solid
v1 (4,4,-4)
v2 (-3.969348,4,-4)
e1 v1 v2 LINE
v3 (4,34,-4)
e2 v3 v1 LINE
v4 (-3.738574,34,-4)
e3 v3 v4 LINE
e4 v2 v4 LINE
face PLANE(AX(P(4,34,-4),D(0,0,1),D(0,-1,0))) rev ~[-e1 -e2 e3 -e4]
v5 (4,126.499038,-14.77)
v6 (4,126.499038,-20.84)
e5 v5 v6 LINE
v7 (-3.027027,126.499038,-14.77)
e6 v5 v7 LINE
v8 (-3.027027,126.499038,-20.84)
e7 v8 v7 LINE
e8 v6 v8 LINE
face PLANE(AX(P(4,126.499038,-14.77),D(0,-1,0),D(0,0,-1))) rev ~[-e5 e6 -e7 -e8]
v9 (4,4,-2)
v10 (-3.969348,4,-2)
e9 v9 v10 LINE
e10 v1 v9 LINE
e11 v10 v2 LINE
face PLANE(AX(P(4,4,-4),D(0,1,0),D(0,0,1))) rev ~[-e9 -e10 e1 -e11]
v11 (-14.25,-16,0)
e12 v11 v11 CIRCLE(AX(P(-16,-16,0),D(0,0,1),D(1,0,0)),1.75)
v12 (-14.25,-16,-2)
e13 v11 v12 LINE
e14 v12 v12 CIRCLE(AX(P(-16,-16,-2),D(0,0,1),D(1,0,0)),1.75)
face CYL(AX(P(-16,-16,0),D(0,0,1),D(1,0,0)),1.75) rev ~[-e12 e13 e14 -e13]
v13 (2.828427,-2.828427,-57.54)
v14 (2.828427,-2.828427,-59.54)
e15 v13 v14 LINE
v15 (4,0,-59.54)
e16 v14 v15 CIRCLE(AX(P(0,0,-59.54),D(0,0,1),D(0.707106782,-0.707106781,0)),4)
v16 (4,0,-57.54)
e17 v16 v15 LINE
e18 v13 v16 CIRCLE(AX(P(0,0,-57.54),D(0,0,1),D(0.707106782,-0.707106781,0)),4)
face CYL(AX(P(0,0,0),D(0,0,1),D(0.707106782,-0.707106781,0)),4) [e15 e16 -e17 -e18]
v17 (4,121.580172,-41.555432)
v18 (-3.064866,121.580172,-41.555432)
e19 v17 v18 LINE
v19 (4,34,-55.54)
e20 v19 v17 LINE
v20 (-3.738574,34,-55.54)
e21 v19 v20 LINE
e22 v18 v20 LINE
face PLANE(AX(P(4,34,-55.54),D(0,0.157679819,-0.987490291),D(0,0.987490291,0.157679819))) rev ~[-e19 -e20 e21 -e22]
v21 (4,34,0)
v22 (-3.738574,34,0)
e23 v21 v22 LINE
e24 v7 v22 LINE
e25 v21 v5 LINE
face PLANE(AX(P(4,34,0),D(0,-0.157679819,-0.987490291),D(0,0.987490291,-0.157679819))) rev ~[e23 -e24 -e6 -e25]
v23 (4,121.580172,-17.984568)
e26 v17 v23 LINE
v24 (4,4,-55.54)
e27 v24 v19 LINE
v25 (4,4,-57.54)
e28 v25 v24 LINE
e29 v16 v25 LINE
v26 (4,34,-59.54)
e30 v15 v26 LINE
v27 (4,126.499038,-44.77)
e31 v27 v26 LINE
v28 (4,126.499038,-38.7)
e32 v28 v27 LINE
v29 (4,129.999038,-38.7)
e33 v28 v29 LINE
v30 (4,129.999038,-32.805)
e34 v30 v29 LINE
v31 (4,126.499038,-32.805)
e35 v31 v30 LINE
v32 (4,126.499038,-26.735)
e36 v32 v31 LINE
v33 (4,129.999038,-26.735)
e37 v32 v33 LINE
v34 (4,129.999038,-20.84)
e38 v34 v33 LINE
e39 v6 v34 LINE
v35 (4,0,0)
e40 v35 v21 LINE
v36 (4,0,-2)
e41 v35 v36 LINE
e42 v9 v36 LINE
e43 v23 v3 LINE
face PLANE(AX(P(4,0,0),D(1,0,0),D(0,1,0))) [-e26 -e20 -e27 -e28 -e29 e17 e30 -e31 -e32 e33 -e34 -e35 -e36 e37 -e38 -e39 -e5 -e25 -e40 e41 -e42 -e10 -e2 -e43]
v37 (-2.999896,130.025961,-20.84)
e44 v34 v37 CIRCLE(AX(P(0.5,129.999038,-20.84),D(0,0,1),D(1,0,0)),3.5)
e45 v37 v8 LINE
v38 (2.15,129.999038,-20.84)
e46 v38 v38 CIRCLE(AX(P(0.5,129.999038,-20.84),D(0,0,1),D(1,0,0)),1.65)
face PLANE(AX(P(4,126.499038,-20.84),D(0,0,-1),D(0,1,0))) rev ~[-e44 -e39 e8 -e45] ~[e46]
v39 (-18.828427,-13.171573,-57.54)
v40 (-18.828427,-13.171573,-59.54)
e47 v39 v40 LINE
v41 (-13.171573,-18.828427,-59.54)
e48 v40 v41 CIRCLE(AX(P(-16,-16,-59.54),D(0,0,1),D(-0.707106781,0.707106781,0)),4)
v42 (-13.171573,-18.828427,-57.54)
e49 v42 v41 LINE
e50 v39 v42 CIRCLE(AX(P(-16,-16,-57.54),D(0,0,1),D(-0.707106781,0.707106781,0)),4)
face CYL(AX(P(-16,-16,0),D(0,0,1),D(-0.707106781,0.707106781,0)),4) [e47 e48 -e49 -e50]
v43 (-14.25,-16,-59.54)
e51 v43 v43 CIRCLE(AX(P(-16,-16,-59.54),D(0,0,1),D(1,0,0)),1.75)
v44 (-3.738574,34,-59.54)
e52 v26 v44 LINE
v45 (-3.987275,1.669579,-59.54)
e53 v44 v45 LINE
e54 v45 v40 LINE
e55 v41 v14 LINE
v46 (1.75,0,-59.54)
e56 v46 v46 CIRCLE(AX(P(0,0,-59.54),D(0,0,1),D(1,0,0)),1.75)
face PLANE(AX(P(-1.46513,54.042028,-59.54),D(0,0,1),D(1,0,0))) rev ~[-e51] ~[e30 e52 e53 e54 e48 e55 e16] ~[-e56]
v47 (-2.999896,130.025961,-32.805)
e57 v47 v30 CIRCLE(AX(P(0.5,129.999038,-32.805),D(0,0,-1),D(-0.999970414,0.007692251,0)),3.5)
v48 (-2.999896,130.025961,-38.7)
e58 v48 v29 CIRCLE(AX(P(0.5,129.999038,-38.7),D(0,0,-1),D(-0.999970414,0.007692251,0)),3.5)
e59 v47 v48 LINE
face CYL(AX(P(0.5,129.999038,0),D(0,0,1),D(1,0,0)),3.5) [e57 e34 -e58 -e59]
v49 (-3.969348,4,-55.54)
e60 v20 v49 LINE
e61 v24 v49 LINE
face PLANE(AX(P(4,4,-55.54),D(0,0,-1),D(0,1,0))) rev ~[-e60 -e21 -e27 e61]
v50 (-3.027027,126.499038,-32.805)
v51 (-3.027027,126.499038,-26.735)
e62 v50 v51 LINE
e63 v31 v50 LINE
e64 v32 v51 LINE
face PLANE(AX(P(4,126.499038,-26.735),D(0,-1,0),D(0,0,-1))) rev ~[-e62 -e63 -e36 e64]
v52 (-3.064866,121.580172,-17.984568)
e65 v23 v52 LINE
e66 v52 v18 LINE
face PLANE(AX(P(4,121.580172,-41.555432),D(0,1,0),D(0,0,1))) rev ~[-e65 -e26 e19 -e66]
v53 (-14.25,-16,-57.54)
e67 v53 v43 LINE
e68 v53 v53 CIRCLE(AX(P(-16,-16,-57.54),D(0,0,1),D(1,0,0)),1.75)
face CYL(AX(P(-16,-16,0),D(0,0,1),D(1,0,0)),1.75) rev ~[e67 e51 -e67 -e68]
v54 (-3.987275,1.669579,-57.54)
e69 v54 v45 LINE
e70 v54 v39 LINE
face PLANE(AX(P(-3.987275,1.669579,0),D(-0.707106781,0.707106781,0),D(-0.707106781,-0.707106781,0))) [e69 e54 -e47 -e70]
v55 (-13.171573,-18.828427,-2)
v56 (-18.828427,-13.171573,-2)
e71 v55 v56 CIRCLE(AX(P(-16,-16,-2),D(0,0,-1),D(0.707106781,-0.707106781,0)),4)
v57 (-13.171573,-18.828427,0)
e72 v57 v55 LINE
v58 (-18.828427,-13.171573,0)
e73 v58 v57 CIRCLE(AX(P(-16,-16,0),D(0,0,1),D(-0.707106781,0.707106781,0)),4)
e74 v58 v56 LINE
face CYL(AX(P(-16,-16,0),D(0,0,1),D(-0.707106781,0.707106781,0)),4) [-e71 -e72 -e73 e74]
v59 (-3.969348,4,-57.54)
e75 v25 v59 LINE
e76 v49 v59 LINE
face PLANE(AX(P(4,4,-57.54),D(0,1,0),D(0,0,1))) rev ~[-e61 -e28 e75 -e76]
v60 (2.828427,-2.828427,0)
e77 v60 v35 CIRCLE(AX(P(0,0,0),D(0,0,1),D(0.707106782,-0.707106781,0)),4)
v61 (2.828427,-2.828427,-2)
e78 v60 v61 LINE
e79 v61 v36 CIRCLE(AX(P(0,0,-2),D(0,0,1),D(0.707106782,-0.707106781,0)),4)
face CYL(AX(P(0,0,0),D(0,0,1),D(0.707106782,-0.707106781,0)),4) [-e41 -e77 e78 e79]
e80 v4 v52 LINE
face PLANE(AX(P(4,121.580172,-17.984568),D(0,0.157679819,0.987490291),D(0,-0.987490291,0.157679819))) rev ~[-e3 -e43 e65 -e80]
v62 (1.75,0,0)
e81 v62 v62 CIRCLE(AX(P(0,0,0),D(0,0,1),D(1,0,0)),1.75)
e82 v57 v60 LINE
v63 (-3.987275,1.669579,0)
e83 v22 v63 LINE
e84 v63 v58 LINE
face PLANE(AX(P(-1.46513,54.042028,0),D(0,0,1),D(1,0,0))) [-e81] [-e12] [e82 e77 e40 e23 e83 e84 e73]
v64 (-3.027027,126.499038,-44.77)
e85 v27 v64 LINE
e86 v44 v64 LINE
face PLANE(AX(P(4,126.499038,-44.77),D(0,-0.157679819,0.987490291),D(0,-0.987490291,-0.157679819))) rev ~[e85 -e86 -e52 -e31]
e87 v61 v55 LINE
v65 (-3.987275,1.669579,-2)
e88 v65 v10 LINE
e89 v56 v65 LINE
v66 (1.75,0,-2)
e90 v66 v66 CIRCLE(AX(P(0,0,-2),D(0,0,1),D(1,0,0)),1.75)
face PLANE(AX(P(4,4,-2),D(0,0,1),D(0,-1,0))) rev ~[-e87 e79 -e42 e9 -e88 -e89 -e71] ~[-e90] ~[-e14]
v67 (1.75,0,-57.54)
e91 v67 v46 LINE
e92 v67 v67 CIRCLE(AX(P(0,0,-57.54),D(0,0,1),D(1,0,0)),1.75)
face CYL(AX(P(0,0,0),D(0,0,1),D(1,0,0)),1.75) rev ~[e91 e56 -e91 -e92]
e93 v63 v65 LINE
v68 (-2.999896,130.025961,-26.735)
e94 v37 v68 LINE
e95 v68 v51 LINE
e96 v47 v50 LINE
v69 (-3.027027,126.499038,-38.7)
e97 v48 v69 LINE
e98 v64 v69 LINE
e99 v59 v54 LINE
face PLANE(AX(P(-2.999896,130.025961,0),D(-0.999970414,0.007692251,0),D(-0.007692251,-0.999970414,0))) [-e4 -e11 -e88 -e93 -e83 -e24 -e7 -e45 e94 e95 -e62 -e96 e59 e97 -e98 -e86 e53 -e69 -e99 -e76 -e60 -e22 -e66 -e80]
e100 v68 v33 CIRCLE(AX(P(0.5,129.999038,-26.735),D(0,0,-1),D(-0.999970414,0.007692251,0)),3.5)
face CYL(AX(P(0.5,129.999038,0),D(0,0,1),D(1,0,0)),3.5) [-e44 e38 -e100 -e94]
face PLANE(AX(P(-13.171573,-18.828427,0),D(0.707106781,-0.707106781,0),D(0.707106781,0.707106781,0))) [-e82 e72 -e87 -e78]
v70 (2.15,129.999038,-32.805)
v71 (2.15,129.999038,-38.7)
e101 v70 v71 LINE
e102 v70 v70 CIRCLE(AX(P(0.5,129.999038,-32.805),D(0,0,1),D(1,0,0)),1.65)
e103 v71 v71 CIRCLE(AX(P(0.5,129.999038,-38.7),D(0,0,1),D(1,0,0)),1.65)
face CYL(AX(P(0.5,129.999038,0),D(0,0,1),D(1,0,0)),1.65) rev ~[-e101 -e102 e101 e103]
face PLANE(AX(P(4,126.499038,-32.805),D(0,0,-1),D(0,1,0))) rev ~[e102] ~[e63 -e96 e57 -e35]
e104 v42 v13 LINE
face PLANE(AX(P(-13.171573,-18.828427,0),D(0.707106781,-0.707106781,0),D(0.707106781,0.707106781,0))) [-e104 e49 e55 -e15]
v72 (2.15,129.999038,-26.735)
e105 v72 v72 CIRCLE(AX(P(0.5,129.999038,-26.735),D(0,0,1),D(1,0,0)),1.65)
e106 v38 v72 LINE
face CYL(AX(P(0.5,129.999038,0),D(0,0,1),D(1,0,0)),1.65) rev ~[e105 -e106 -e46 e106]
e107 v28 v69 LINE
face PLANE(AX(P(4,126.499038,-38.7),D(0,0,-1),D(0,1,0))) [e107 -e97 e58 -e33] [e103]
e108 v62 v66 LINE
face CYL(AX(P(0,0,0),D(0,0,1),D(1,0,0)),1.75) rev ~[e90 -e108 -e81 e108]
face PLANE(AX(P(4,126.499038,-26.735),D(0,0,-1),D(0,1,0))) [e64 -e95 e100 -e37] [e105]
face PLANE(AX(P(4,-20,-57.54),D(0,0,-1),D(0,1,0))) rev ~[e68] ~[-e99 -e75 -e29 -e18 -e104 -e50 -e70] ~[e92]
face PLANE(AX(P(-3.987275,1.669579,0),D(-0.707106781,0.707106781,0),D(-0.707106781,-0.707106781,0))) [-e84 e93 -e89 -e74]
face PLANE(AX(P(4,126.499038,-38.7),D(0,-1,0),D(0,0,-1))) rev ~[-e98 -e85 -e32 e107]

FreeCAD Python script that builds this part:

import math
import FreeCAD as App
import Part
import Sketcher
from FreeCAD import Vector
Q = App.Units.Quantity

doc = App.newDocument("Part")
params = doc.addObject("Spreadsheet::Sheet", "Params")
for row, (alias, value) in enumerate([
    ("sketch1_radius", "4 mm"),
    ("sketch1_diameter", "3.5 mm"),
    ("sketch1_diameter2", "3.3 mm"),
    ("sketch1_radius2", "3.5 mm"),
    ("pad1_length", "59.54 mm"),
    ("sketch2_width", "24 mm"),
    ("sketch2_width2", "30 mm"),
    ("sketch2_width3", "7 mm"),
    ("sketch2_height", "2 mm"),
    ("sketch2_height2", "55.54 mm"),
], start=1):
    params.set(f"A{row}", alias)
    params.set(f"B{row}", "=" + value)
    params.setAlias(f"B{row}", alias)

body = doc.addObject("PartDesign::Body", "Body")

# Sketch on XY plane
sketch1 = doc.addObject("Sketcher::SketchObject", "Sketch")
body.addObject(sketch1)
sketch1.AttachmentSupport = (doc.XY_Plane, [""])
sketch1.MapMode = "FlatFace"
sketch1.addGeometry([
    Part.LineSegment(Vector(-13.2, -18.8, 0), Vector(2.8, -2.8, 0)),  # 0
    Part.ArcOfCircle(Part.Circle(Vector(0, 0, 0), Vector(0, 0, 1), 4), math.radians(-45), math.radians(0)),  # 1
    Part.LineSegment(Vector(4, 0, 0), Vector(4, 130, 0)),  # 2
    Part.ArcOfCircle(Part.Circle(Vector(0.5, 130, 0), Vector(0, 0, 1), 3.5), math.radians(0), math.radians(180)),  # 3
    Part.LineSegment(Vector(-3, 130, 0), Vector(-4, 1.7, 0)),  # 4
    Part.LineSegment(Vector(-4, 1.7, 0), Vector(-18.8, -13.2, 0)),  # 5
    Part.ArcOfCircle(Part.Circle(Vector(-16, -16, 0), Vector(0, 0, 1), 4), math.radians(135), math.radians(315)),  # 6
    Part.Circle(Vector(-16, -16, 0), Vector(0, 0, 1), 1.8),  # 7
    Part.Circle(Vector(0, 0, 0), Vector(0, 0, 1), 1.8),  # 8
    Part.Circle(Vector(0.5, 130, 0), Vector(0, 0, 1), 1.6),  # 9
], False)
sketch1.addConstraint([
    Sketcher.Constraint("Tangent", 0, 2, 1, 1),
    Sketcher.Constraint("Tangent", 1, 2, 2, 1),
    Sketcher.Constraint("Tangent", 2, 2, 3, 1),
    Sketcher.Constraint("Tangent", 3, 2, 4, 1),
    Sketcher.Constraint("Coincident", 4, 2, 5, 1),
    Sketcher.Constraint("Tangent", 5, 2, 6, 1),
    Sketcher.Constraint("Tangent", 6, 2, 0, 1),
    Sketcher.Constraint("Vertical", 2),
    Sketcher.Constraint("Coincident", 1, 3, -1, 1),
    Sketcher.Constraint("Coincident", 8, 3, -1, 1),
    Sketcher.Constraint("Coincident", 7, 3, 6, 3),
    Sketcher.Constraint("Coincident", 9, 3, 3, 3),
    Sketcher.Constraint("Equal", 1, 6),
    Sketcher.Constraint("Equal", 7, 8),
    Sketcher.Constraint("Parallel", 0, 5),
    Sketcher.Constraint("Radius", 1, Q("4 mm")),
    Sketcher.Constraint("Diameter", 7, Q("3.5 mm")),
    Sketcher.Constraint("Diameter", 9, Q("3.3 mm")),
    Sketcher.Constraint("Radius", 3, Q("3.5 mm")),
    Sketcher.Constraint("Angle", 0, Q("45 deg")),
    Sketcher.Constraint("DistanceX", 6, 3, -1, 1, Q("16 mm")),
    Sketcher.Constraint("DistanceY", 2, 1, 2, 2, Q("129.999038 mm")),
    Sketcher.Constraint("Distance", 4, Q("128.36018 mm")),
])
sketch1.setExpression("Constraints[15]", "Params.sketch1_radius")
sketch1.setExpression("Constraints[16]", "Params.sketch1_diameter")
sketch1.setExpression("Constraints[17]", "Params.sketch1_diameter2")
sketch1.setExpression("Constraints[18]", "Params.sketch1_radius2")
pad1 = doc.addObject("PartDesign::Pad", "Pad")
body.addObject(pad1)
pad1.Profile = sketch1
pad1.setExpression("Length", "Params.pad1_length")
pad1.Reversed = True

# Sketch on YZ plane
sketch2 = doc.addObject("Sketcher::SketchObject", "Sketch001")
body.addObject(sketch2)
sketch2.AttachmentSupport = (doc.YZ_Plane, [""])
sketch2.MapMode = "FlatFace"
sketch2.AttachmentOffset = App.Placement(Vector(0, 0, 4), App.Rotation())
sketch2.addGeometry([
    Part.LineSegment(Vector(4, -2, 0), Vector(-20, -2, 0)),  # 0
    Part.LineSegment(Vector(-20, -2, 0), Vector(-20, -57.5, 0)),  # 1
    Part.LineSegment(Vector(-20, -57.5, 0), Vector(4, -57.5, 0)),  # 2
    Part.LineSegment(Vector(4, -57.5, 0), Vector(4, -55.5, 0)),  # 3
    Part.LineSegment(Vector(4, -55.5, 0), Vector(34, -55.5, 0)),  # 4
    Part.LineSegment(Vector(34, -55.5, 0), Vector(121.6, -41.6, 0)),  # 5
    Part.LineSegment(Vector(121.6, -41.6, 0), Vector(121.6, -18, 0)),  # 6
    Part.LineSegment(Vector(121.6, -18, 0), Vector(34, -4, 0)),  # 7
    Part.LineSegment(Vector(34, -4, 0), Vector(4, -4, 0)),  # 8
    Part.LineSegment(Vector(4, -4, 0), Vector(4, -2, 0)),  # 9
    Part.LineSegment(Vector(133.5, -26.7, 0), Vector(126.5, -26.7, 0)),  # 10
    Part.LineSegment(Vector(126.5, -26.7, 0), Vector(126.5, -32.8, 0)),  # 11
    Part.LineSegment(Vector(126.5, -32.8, 0), Vector(133.5, -32.8, 0)),  # 12
    Part.LineSegment(Vector(133.5, -32.8, 0), Vector(133.5, -26.7, 0)),  # 13
    Part.LineSegment(Vector(133.5, 0, 0), Vector(34, 0, 0)),  # 14
    Part.LineSegment(Vector(34, 0, 0), Vector(126.5, -14.8, 0)),  # 15
    Part.LineSegment(Vector(126.5, -14.8, 0), Vector(126.5, -20.8, 0)),  # 16
    Part.LineSegment(Vector(126.5, -20.8, 0), Vector(133.5, -20.8, 0)),  # 17
    Part.LineSegment(Vector(133.5, -20.8, 0), Vector(133.5, 0, 0)),  # 18
    Part.LineSegment(Vector(126.5, -44.8, 0), Vector(34, -59.5, 0)),  # 19
    Part.LineSegment(Vector(34, -59.5, 0), Vector(133.5, -59.5, 0)),  # 20
    Part.LineSegment(Vector(133.5, -59.5, 0), Vector(133.5, -38.7, 0)),  # 21
    Part.LineSegment(Vector(133.5, -38.7, 0), Vector(126.5, -38.7, 0)),  # 22
    Part.LineSegment(Vector(126.5, -38.7, 0), Vector(126.5, -44.8, 0)),  # 23
], False)
sketch2.addConstraint([
    Sketcher.Constraint("Coincident", 0, 2, 1, 1),
    Sketcher.Constraint("Coincident", 1, 2, 2, 1),
    Sketcher.Constraint("Coincident", 2, 2, 3, 1),
    Sketcher.Constraint("Coincident", 3, 2, 4, 1),
    Sketcher.Constraint("Coincident", 4, 2, 5, 1),
    Sketcher.Constraint("Coincident", 5, 2, 6, 1),
    Sketcher.Constraint("Coincident", 6, 2, 7, 1),
    Sketcher.Constraint("Coincident", 7, 2, 8, 1),
    Sketcher.Constraint("Coincident", 8, 2, 9, 1),
    Sketcher.Constraint("Coincident", 9, 2, 0, 1),
    Sketcher.Constraint("Coincident", 10, 2, 11, 1),
    Sketcher.Constraint("Coincident", 11, 2, 12, 1),
    Sketcher.Constraint("Coincident", 12, 2, 13, 1),
    Sketcher.Constraint("Coincident", 13, 2, 10, 1),
    Sketcher.Constraint("Coincident", 14, 2, 15, 1),
    Sketcher.Constraint("Coincident", 15, 2, 16, 1),
    Sketcher.Constraint("Coincident", 16, 2, 17, 1),
    Sketcher.Constraint("Coincident", 17, 2, 18, 1),
    Sketcher.Constraint("Coincident", 18, 2, 14, 1),
    Sketcher.Constraint("Coincident", 19, 2, 20, 1),
    Sketcher.Constraint("Coincident", 20, 2, 21, 1),
    Sketcher.Constraint("Coincident", 21, 2, 22, 1),
    Sketcher.Constraint("Coincident", 22, 2, 23, 1),
    Sketcher.Constraint("Coincident", 23, 2, 19, 1),
    Sketcher.Constraint("Horizontal", 0),
    Sketcher.Constraint("Vertical", 1),
    Sketcher.Constraint("Horizontal", 2),
    Sketcher.Constraint("Vertical", 3),
    Sketcher.Constraint("Horizontal", 4),
    Sketcher.Constraint("Vertical", 6),
    Sketcher.Constraint("Horizontal", 8),
    Sketcher.Constraint("Vertical", 9),
    Sketcher.Constraint("Horizontal", 10),
    Sketcher.Constraint("Vertical", 11),
    Sketcher.Constraint("Horizontal", 12),
    Sketcher.Constraint("Vertical", 13),
    Sketcher.Constraint("Horizontal", 14),
    Sketcher.Constraint("Vertical", 16),
    Sketcher.Constraint("Horizontal", 17),
    Sketcher.Constraint("Vertical", 18),
    Sketcher.Constraint("Horizontal", 20),
    Sketcher.Constraint("Vertical", 21),
    Sketcher.Constraint("Horizontal", 22),
    Sketcher.Constraint("Vertical", 23),
    Sketcher.Constraint("PointOnObject", 14, 2, -1),
    Sketcher.Constraint("Parallel", 7, 15),
    Sketcher.Constraint("Parallel", 5, 19),
    Sketcher.Constraint("Vertical", 4, 2, 7, 2),
    Sketcher.Constraint("Vertical", 3, 2, 8, 2),
    Sketcher.Constraint("Vertical", 7, 2, 14, 2),
    Sketcher.Constraint("Vertical", 11, 2, 15, 2),
    Sketcher.Constraint("Vertical", 13, 2, 17, 2),
    Sketcher.Constraint("Vertical", 14, 2, 19, 2),
    Sketcher.Constraint("Vertical", 18, 2, 20, 2),
    Sketcher.Constraint("Vertical", 16, 2, 22, 2),
    Sketcher.Constraint("Equal", 3, 9),
    Sketcher.Constraint("Equal", 13, 16),
    Sketcher.Constraint("Equal", 18, 21),
    Sketcher.Constraint("Equal", 16, 23),
    Sketcher.Constraint("DistanceX", 0, 2, 0, 1, Q("24 mm")),
    Sketcher.Constraint("DistanceX", 4, 1, 4, 2, Q("30 mm")),
    Sketcher.Constraint("DistanceX", 10, 2, 10, 1, Q("7 mm")),
    Sketcher.Constraint("DistanceY", 3, 1, 3, 2, Q("2 mm")),
    Sketcher.Constraint("DistanceX", 0, 2, -1, 1, Q("20 mm")),
    Sketcher.Constraint("DistanceY", 0, 2, -1, 1, Q("2 mm")),
    Sketcher.Constraint("DistanceY", 19, 2, 4, 2, Q("4 mm")),
    Sketcher.Constraint("DistanceY", 1, 2, 1, 1, Q("55.54 mm")),
    Sketcher.Constraint("DistanceY", 11, 2, 11, 1, Q("6.07 mm")),
    Sketcher.Constraint("DistanceY", 18, 1, 18, 2, Q("20.84 mm")),
    Sketcher.Constraint("DistanceY", 10, 2, -1, 1, Q("26.735 mm")),
    Sketcher.Constraint("DistanceX", 14, 2, 14, 1, Q("99.499038 mm")),
    Sketcher.Constraint("DistanceY", 6, 1, 6, 2, Q("23.570863 mm")),
])
sketch2.setExpression("Constraints[59]", "Params.sketch2_width")
sketch2.setExpression("Constraints[60]", "Params.sketch2_width2")
sketch2.setExpression("Constraints[61]", "Params.sketch2_width3")
sketch2.setExpression("Constraints[62]", "Params.sketch2_height")
sketch2.setExpression("Constraints[66]", "Params.sketch2_height2")
pocket1 = doc.addObject("PartDesign::Pocket", "Pocket")
body.addObject(pocket1)
pocket1.Profile = sketch2
pocket1.Type = "ThroughAll"

doc.recompute()
